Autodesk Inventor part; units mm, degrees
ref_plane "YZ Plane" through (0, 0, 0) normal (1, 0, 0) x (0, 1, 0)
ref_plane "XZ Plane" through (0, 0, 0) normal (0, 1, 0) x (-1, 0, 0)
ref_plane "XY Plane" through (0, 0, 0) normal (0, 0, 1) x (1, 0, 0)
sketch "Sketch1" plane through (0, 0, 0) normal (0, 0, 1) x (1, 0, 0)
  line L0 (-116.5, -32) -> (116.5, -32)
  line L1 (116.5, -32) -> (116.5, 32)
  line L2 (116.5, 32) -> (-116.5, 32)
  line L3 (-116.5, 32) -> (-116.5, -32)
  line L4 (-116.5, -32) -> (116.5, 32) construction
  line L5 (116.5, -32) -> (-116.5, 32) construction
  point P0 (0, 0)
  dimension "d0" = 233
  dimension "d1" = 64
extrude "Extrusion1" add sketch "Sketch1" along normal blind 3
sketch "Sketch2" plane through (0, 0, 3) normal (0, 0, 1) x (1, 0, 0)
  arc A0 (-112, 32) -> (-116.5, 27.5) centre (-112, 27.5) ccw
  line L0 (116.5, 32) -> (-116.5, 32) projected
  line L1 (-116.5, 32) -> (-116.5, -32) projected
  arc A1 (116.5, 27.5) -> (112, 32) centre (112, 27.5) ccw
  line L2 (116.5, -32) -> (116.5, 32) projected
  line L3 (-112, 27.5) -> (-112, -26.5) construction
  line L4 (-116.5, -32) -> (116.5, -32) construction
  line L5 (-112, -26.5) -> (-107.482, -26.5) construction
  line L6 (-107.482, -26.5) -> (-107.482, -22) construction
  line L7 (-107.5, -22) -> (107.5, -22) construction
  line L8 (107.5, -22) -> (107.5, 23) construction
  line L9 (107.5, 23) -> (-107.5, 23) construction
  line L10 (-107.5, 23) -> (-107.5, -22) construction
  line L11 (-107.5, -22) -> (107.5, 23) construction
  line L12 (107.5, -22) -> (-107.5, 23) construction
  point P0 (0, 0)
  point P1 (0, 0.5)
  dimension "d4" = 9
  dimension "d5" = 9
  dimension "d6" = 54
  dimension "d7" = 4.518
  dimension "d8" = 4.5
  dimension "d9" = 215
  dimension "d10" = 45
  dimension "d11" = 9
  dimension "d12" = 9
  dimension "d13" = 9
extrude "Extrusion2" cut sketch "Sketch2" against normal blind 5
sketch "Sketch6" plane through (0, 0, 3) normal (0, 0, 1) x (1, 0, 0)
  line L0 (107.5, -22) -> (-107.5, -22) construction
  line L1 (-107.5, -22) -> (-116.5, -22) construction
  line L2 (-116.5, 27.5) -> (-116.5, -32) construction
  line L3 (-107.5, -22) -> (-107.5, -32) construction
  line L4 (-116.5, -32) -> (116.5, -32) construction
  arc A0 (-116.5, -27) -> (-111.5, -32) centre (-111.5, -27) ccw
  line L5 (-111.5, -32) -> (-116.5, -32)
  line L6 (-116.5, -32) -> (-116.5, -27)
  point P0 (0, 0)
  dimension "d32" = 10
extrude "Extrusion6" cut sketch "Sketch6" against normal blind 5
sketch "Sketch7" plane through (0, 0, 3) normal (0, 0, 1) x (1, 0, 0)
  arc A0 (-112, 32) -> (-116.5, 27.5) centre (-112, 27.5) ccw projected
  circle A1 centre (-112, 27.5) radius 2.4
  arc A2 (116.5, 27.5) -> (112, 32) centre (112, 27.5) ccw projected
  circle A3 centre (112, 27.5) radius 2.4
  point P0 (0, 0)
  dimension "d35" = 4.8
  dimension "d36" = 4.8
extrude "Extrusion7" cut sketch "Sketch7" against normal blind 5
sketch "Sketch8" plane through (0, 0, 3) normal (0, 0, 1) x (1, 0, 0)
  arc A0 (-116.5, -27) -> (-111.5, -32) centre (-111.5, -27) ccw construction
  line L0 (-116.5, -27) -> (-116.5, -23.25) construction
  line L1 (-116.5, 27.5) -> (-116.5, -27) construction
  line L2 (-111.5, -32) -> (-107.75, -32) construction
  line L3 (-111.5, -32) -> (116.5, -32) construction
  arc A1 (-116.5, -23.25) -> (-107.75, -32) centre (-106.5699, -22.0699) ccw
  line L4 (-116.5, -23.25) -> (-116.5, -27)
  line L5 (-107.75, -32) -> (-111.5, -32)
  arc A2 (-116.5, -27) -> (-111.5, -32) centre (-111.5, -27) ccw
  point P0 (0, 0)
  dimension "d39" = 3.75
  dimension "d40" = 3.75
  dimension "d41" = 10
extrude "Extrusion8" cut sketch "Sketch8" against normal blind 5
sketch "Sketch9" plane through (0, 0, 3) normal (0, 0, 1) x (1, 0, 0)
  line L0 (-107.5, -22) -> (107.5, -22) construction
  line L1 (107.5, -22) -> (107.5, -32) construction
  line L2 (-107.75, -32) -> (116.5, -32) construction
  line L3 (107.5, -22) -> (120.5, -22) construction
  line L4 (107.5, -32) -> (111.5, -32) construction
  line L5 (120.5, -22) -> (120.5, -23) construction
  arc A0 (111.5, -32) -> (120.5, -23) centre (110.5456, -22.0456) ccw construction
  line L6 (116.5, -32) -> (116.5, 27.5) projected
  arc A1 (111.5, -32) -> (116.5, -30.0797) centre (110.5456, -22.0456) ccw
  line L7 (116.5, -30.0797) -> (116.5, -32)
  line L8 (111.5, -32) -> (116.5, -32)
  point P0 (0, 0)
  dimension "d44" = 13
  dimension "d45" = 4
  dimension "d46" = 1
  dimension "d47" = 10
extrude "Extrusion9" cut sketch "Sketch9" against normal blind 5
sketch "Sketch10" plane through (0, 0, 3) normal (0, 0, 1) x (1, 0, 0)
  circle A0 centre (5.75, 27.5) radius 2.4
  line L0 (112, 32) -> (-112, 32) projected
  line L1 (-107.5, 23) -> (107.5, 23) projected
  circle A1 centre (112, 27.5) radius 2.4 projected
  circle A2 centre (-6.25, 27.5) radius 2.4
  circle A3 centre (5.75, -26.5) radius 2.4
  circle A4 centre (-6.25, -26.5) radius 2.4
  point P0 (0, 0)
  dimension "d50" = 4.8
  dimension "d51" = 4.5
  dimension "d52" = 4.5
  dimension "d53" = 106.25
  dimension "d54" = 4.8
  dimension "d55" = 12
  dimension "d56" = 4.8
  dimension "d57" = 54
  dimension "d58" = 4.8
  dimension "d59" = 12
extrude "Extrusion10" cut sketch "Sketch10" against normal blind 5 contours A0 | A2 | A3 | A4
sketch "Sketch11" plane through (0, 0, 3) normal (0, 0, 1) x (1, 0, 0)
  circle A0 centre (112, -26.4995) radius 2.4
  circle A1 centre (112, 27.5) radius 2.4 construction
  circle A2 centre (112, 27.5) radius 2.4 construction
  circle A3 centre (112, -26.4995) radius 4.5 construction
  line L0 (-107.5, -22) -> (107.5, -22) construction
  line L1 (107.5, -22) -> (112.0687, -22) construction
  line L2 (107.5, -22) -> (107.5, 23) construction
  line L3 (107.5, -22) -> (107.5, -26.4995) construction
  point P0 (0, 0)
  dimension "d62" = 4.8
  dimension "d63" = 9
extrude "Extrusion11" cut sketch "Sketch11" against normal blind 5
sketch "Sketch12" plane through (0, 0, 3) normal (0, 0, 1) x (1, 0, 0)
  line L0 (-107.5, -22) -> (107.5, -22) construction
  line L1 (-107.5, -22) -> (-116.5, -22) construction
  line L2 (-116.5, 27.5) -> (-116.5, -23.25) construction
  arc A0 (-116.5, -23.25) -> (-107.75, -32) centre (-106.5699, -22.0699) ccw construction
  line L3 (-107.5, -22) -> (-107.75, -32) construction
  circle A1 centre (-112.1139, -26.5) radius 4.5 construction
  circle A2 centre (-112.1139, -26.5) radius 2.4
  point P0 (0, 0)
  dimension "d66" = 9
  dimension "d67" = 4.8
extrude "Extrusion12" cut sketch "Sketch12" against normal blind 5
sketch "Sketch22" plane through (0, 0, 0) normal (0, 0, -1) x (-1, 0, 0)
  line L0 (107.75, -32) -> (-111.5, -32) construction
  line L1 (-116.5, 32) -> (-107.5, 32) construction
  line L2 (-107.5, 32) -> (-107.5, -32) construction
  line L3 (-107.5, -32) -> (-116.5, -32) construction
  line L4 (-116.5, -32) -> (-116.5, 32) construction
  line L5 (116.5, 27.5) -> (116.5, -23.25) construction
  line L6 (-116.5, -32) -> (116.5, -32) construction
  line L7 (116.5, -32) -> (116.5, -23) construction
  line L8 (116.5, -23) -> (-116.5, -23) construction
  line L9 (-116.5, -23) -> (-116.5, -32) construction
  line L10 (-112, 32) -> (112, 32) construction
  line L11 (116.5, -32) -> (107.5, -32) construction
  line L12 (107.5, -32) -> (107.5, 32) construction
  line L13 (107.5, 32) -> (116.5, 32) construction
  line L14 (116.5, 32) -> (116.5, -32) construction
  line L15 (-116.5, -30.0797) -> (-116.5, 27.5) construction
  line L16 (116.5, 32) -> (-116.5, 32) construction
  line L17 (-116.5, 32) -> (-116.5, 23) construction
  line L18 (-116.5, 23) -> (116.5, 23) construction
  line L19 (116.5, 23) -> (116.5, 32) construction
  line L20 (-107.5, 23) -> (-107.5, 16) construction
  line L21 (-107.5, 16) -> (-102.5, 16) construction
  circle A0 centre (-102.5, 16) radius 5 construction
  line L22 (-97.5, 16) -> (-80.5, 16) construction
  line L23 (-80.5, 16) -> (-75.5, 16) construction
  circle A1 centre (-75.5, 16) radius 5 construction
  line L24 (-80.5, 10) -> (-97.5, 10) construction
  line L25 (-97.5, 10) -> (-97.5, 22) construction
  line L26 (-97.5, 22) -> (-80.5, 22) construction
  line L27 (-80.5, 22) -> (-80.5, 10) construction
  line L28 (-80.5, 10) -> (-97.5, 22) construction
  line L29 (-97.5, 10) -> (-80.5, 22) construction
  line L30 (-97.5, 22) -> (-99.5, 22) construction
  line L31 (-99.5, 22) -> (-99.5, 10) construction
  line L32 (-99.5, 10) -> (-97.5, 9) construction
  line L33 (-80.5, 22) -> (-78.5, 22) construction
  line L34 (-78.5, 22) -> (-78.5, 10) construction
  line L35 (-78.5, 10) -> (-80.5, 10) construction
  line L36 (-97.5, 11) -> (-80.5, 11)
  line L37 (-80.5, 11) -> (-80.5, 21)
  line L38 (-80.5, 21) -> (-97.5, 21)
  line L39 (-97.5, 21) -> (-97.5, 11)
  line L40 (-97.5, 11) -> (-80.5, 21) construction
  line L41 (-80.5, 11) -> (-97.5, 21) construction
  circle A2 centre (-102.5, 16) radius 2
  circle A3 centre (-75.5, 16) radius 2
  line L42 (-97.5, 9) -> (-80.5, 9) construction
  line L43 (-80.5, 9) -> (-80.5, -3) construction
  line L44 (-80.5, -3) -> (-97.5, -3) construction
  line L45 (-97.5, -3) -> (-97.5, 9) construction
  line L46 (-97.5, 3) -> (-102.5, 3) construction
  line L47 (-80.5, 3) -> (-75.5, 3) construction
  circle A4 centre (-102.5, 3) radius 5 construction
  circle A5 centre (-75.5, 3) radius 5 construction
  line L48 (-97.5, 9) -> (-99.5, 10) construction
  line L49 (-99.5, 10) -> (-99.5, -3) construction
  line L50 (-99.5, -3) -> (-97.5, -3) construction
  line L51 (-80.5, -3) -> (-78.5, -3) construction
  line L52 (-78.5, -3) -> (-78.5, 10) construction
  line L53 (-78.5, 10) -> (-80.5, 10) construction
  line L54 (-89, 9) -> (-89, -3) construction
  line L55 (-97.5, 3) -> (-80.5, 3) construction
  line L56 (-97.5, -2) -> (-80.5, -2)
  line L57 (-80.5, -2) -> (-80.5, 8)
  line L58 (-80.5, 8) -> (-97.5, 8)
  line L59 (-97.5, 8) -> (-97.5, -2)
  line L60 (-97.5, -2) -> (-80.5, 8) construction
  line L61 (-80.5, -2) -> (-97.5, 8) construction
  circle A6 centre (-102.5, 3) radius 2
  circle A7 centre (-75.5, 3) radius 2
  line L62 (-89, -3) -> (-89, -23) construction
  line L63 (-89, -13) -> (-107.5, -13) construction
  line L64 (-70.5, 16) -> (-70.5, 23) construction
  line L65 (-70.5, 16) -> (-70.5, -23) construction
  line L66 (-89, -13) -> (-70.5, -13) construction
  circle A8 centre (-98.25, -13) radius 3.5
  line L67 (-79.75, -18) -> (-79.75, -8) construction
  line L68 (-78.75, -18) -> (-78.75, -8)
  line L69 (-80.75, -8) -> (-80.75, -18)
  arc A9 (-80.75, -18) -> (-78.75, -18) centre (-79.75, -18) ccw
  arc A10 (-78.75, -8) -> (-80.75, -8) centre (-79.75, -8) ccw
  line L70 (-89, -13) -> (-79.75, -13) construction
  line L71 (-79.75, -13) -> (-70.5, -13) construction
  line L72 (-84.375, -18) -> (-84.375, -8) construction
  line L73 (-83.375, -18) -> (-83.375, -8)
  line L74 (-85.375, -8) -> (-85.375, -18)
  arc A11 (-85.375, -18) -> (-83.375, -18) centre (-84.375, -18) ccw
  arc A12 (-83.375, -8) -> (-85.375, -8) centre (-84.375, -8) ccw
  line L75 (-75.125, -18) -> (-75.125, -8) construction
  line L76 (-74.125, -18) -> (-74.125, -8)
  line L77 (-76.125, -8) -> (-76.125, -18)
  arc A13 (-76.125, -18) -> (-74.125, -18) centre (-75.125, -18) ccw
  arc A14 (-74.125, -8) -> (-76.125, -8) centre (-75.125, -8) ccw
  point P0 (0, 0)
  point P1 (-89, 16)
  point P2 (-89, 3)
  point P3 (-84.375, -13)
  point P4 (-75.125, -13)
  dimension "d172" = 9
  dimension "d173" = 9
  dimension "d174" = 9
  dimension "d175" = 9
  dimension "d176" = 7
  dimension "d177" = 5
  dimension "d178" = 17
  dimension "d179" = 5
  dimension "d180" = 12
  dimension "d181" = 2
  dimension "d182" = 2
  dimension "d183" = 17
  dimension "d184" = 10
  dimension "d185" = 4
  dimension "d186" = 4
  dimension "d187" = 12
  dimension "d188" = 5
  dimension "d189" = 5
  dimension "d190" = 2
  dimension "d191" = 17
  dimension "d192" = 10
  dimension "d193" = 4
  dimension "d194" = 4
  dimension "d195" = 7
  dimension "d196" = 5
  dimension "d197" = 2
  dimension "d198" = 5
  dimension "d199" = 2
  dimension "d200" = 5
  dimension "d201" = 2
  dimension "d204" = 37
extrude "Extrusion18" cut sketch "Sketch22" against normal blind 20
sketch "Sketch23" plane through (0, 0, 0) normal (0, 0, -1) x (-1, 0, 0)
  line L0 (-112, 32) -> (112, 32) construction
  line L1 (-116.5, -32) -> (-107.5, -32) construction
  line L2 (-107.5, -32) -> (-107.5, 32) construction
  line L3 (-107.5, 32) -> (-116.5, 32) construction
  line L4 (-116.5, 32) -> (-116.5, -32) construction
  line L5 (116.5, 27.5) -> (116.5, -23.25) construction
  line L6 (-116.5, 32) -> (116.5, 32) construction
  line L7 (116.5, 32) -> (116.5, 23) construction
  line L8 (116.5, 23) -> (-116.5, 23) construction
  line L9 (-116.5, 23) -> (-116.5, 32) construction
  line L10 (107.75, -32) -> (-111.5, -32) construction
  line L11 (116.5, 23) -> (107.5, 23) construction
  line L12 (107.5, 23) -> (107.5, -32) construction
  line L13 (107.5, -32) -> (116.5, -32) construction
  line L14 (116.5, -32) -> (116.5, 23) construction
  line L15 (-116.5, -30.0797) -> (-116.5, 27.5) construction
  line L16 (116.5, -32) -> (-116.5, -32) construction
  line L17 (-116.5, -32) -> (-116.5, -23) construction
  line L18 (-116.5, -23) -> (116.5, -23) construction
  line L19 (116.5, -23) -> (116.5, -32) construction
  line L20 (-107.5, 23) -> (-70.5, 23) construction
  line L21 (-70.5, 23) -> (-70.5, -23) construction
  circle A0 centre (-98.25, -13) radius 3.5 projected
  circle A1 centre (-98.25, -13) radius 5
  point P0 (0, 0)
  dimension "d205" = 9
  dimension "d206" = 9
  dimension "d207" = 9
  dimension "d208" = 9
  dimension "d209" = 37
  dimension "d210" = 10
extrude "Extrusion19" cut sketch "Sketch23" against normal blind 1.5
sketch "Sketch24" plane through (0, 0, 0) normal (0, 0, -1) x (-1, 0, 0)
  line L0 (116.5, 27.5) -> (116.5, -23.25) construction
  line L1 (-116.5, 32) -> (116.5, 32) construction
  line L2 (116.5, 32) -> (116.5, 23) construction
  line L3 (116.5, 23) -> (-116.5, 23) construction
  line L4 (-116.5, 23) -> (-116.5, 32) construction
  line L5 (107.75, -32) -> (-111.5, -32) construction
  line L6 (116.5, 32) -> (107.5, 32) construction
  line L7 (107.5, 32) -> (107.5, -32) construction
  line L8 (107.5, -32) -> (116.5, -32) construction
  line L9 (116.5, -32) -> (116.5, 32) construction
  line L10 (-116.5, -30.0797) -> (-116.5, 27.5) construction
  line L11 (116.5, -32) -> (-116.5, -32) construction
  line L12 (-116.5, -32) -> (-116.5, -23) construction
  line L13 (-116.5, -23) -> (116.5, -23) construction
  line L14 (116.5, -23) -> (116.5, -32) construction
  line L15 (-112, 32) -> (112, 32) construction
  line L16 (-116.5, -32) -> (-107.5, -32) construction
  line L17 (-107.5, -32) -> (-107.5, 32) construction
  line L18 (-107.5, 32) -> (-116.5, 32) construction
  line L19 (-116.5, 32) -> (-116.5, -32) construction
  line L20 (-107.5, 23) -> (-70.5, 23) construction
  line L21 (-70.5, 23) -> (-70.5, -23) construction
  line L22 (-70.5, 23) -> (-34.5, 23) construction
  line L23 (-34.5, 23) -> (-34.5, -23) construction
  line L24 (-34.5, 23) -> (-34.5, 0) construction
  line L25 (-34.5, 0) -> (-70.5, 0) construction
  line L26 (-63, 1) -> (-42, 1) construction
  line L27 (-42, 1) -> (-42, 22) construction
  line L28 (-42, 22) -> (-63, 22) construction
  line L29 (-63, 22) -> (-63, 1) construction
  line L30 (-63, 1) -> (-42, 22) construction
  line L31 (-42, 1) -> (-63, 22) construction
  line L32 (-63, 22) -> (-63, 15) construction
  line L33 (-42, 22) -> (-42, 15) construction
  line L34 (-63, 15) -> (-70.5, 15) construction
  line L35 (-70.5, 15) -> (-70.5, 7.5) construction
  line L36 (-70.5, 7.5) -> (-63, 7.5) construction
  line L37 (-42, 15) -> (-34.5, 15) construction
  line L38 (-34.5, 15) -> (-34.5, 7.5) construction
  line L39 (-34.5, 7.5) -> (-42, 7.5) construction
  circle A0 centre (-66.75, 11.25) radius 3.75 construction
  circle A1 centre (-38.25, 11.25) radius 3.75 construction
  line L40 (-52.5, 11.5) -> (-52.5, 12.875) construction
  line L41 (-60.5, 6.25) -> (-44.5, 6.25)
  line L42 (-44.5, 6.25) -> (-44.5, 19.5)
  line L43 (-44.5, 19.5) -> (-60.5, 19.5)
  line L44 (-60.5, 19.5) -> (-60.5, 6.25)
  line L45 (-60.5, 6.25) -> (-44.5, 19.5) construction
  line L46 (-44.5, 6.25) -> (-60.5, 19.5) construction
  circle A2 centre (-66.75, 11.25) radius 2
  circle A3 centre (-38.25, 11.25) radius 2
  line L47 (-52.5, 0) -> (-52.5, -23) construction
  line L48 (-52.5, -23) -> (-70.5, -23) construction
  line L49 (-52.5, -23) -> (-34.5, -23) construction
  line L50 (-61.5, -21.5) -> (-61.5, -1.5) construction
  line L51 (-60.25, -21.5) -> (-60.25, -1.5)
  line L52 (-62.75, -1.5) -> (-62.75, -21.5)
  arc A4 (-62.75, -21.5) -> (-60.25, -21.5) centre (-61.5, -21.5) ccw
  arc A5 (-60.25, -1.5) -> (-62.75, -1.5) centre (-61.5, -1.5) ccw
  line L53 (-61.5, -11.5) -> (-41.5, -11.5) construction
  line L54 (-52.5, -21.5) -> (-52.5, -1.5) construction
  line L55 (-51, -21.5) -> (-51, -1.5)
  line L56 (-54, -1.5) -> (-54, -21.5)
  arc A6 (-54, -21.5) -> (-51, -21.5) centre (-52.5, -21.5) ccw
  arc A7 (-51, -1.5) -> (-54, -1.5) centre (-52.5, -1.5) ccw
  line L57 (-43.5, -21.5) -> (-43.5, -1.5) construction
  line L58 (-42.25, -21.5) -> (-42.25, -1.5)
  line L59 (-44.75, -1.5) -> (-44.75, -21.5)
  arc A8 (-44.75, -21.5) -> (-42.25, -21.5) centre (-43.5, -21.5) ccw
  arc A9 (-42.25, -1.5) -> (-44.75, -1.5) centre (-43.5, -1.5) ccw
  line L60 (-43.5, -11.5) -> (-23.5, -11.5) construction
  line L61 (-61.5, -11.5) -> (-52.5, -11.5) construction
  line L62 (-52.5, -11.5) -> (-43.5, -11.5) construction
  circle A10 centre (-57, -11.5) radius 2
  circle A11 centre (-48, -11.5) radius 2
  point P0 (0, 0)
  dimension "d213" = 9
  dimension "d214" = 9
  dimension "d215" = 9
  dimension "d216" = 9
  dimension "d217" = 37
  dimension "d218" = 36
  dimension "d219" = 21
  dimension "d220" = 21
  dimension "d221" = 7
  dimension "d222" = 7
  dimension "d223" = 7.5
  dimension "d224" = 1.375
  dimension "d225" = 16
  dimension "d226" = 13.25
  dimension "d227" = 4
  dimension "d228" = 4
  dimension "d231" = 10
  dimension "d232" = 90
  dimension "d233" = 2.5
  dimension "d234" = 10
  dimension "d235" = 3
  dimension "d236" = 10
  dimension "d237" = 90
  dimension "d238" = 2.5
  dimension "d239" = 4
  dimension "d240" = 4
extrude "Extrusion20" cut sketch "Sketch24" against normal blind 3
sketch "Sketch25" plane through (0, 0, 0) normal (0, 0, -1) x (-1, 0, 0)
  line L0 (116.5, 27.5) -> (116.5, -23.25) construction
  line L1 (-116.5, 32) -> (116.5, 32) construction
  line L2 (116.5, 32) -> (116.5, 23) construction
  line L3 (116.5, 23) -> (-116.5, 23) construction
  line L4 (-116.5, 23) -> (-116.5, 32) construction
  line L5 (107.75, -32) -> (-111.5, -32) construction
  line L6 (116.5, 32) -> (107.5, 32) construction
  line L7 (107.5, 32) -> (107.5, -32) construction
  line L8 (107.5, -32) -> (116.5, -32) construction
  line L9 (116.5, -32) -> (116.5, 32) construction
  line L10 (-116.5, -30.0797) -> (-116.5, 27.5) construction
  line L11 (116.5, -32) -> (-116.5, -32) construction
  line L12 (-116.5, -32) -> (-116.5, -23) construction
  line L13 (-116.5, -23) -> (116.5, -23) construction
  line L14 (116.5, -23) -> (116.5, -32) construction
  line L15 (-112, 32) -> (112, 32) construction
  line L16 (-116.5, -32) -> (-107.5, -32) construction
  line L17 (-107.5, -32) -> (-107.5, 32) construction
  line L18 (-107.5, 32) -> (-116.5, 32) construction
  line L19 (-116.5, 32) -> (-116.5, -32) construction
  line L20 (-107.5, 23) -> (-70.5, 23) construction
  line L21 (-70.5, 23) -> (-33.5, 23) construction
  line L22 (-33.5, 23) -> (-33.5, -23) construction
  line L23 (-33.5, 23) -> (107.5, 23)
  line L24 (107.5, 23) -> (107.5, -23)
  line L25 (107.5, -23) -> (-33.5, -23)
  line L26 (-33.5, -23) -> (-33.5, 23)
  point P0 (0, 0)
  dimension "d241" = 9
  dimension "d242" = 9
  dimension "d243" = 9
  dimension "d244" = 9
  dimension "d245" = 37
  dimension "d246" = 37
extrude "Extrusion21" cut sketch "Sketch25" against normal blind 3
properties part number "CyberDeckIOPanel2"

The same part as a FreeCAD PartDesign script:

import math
import FreeCAD as App
import Part
import Sketcher
from FreeCAD import Vector
Q = App.Units.Quantity

doc = App.newDocument("Part")
body = doc.addObject("PartDesign::Body", "Body")

# Sketch on XY plane
sketch1 = body.newObject("Sketcher::SketchObject", "Sketch")
sketch1.AttachmentSupport = (doc.getObject("XY_Plane"), [""])
sketch1.MapMode = "FlatFace"
sketch1.addGeometry([
    Part.LineSegment(Vector(-116.5, 32, 0), Vector(-116.5, -32, 0)),
    Part.LineSegment(Vector(-116.5, -32, 0), Vector(116.5, -32, 0)),
    Part.LineSegment(Vector(116.5, -32, 0), Vector(116.5, 32, 0)),
    Part.LineSegment(Vector(116.5, 32, 0), Vector(-116.5, 32, 0)),
], False)
sketch1.addConstraint([
    Sketcher.Constraint("Coincident", 0, 2, 1, 1),
    Sketcher.Constraint("Coincident", 1, 2, 2, 1),
    Sketcher.Constraint("Coincident", 2, 2, 3, 1),
    Sketcher.Constraint("Coincident", 3, 2, 0, 1),
    Sketcher.Constraint("Vertical", 0),
    Sketcher.Constraint("Horizontal", 1),
    Sketcher.Constraint("Vertical", 2),
    Sketcher.Constraint("Horizontal", 3),
    Sketcher.Constraint("Symmetric", 0, 2, 2, 2, -1, 1),
    Sketcher.Constraint("DistanceX", 1, 1, 1, 2, Q("233 mm")),
    Sketcher.Constraint("DistanceY", 0, 2, 0, 1, Q("64 mm")),
])
pad1 = body.newObject("PartDesign::Pad", "Pad")
pad1.Profile = sketch1
pad1.Length = 3

# Sketch on XY plane
sketch2 = body.newObject("Sketcher::SketchObject", "Sketch001")
sketch2.AttachmentSupport = (doc.getObject("XY_Plane"), [""])
sketch2.MapMode = "FlatFace"
sketch2.AttachmentOffset = App.Placement(Vector(0, 0, 3), App.Rotation())
sketch2.addGeometry([
    Part.LineSegment(Vector(116.5, 32, 0), Vector(112, 32, 0)),  # 0
    Part.ArcOfCircle(Part.Circle(Vector(112, 27.5, 0), Vector(0, 0, 1), 4.5), math.radians(0), math.radians(90)),  # 1
    Part.LineSegment(Vector(116.5, 27.5, 0), Vector(116.5, 32, 0)),  # 2
    Part.ArcOfCircle(Part.Circle(Vector(-112, 27.5, 0), Vector(0, 0, 1), 4.5), math.radians(90), math.radians(180)),  # 3
    Part.LineSegment(Vector(-112, 32, 0), Vector(-116.5, 32, 0)),  # 4
    Part.LineSegment(Vector(-116.5, 32, 0), Vector(-116.5, 27.5, 0)),  # 5
], False)
sketch2.addConstraint([
    Sketcher.Constraint("Tangent", 0, 2, 1, 2),
    Sketcher.Constraint("Tangent", 1, 1, 2, 1),
    Sketcher.Constraint("Coincident", 2, 2, 0, 1),
    Sketcher.Constraint("Tangent", 3, 1, 4, 1),
    Sketcher.Constraint("Coincident", 4, 2, 5, 1),
    Sketcher.Constraint("Tangent", 5, 2, 3, 2),
    Sketcher.Constraint("Horizontal", 0),
    Sketcher.Constraint("Vertical", 2),
    Sketcher.Constraint("Horizontal", 4),
    Sketcher.Constraint("Vertical", 5),
    Sketcher.Constraint("Equal", 1, 3),
    Sketcher.Constraint("Symmetric", 1, 3, 3, 3, -2),
    Sketcher.Constraint("Radius", 1, Q("4.5 mm")),
    Sketcher.Constraint("DistanceX", -1, 1, 1, 3, Q("112 mm")),
    Sketcher.Constraint("DistanceY", -1, 1, 0, 2, Q("32 mm")),
])
pocket1 = body.newObject("PartDesign::Pocket", "Pocket")
pocket1.Profile = sketch2
pocket1.Length = 5

# Sketch on XY plane
sketch3 = body.newObject("Sketcher::SketchObject", "Sketch002")
sketch3.AttachmentSupport = (doc.getObject("XY_Plane"), [""])
sketch3.MapMode = "FlatFace"
sketch3.AttachmentOffset = App.Placement(Vector(0, 0, 3), App.Rotation())
sketch3.addGeometry([
    Part.ArcOfCircle(Part.Circle(Vector(-111.5, -27, 0), Vector(0, 0, 1), 5), math.radians(180), math.radians(270)),
    Part.LineSegment(Vector(-116.5, -27, 0), Vector(-116.5, -32, 0)),
    Part.LineSegment(Vector(-116.5, -32, 0), Vector(-111.5, -32, 0)),
], False)
sketch3.addConstraint([
    Sketcher.Constraint("Tangent", 0, 1, 1, 1),
    Sketcher.Constraint("Coincident", 1, 2, 2, 1),
    Sketcher.Constraint("Tangent", 2, 2, 0, 2),
    Sketcher.Constraint("Vertical", 1),
    Sketcher.Constraint("Horizontal", 2),
    Sketcher.Constraint("Radius", 0, Q("5 mm")),
    Sketcher.Constraint("DistanceY", 0, 3, -1, 1, Q("27 mm")),
    Sketcher.Constraint("DistanceX", 0, 3, -1, 1, Q("111.5 mm")),
])
pocket2 = body.newObject("PartDesign::Pocket", "Pocket001")
pocket2.Profile = sketch3
pocket2.Length = 5

# Sketch on XY plane
sketch4 = body.newObject("Sketcher::SketchObject", "Sketch003")
sketch4.AttachmentSupport = (doc.getObject("XY_Plane"), [""])
sketch4.MapMode = "FlatFace"
sketch4.AttachmentOffset = App.Placement(Vector(0, 0, 3), App.Rotation())
sketch4.addGeometry([
    Part.Circle(Vector(-112, 27.5, 0), Vector(0, 0, 1), 2.4),
    Part.Circle(Vector(112, 27.5, 0), Vector(0, 0, 1), 2.4),
], False)
sketch4.addConstraint([
    Sketcher.Constraint("Equal", 0, 1),
    Sketcher.Constraint("Symmetric", 0, 3, 1, 3, -2),
    Sketcher.Constraint("Diameter", 0, Q("4.8 mm")),
    Sketcher.Constraint("DistanceX", 0, 3, -1, 1, Q("112 mm")),
    Sketcher.Constraint("DistanceY", -1, 1, 0, 3, Q("27.5 mm")),
])
pocket3 = body.newObject("PartDesign::Pocket", "Pocket002")
pocket3.Profile = sketch4
pocket3.Length = 5

# Sketch on XY plane
sketch5 = body.newObject("Sketcher::SketchObject", "Sketch004")
sketch5.AttachmentSupport = (doc.getObject("XY_Plane"), [""])
sketch5.MapMode = "FlatFace"
sketch5.AttachmentOffset = App.Placement(Vector(0, 0, 3), App.Rotation())
sketch5.addGeometry([
    Part.ArcOfCircle(Part.Circle(Vector(-106.5699, -22.0699, 0), Vector(0, 0, 1), 9.999976), math.radians(-173.222716), math.radians(-96.777284)),
    Part.LineSegment(Vector(-116.5, -23.25, 0), Vector(-116.5, -27, 0)),
    Part.ArcOfCircle(Part.Circle(Vector(-111.5, -27, 0), Vector(0, 0, 1), 5), math.radians(180), math.radians(270)),
    Part.LineSegment(Vector(-111.5, -32, 0), Vector(-107.75, -32, 0)),
], False)
sketch5.addConstraint([
    Sketcher.Constraint("Coincident", 0, 1, 1, 1),
    Sketcher.Constraint("Tangent", 1, 2, 2, 1),
    Sketcher.Constraint("Tangent", 2, 2, 3, 1),
    Sketcher.Constraint("Coincident", 3, 2, 0, 2),
    Sketcher.Constraint("Vertical", 1),
    Sketcher.Constraint("Horizontal", 3),
    Sketcher.Constraint("Equal", 3, 1),
    Sketcher.Constraint("Radius", 0, Q("10 mm")),
    Sketcher.Constraint("Radius", 2, Q("5 mm")),
    Sketcher.Constraint("DistanceX", 3, 1, 3, 2, Q("3.75 mm")),
    Sketcher.Constraint("DistanceY", 2, 3, -1, 1, Q("27 mm")),
    Sketcher.Constraint("DistanceX", 2, 3, -1, 1, Q("111.5 mm")),
])
pocket4 = body.newObject("PartDesign::Pocket", "Pocket003")
pocket4.Profile = sketch5
pocket4.Length = 5

# Sketch on XY plane
sketch6 = body.newObject("Sketcher::SketchObject", "Sketch005")
sketch6.AttachmentSupport = (doc.getObject("XY_Plane"), [""])
sketch6.MapMode = "FlatFace"
sketch6.AttachmentOffset = App.Placement(Vector(0, 0, 3), App.Rotation())
sketch6.addGeometry([
    Part.LineSegment(Vector(111.5, -32, 0), Vector(116.5, -32, 0)),
    Part.LineSegment(Vector(116.5, -32, 0), Vector(116.5, -30.0797, 0)),
    Part.ArcOfCircle(Part.Circle(Vector(110.5456, -22.0456, 0), Vector(0, 0, 1), 10.000048), math.radians(-84.523381), math.radians(-53.456344)),
], False)
sketch6.addConstraint([
    Sketcher.Constraint("Coincident", 0, 2, 1, 1),
    Sketcher.Constraint("Coincident", 1, 2, 2, 2),
    Sketcher.Constraint("Coincident", 2, 1, 0, 1),
    Sketcher.Constraint("Horizontal", 0),
    Sketcher.Constraint("Vertical", 1),
    Sketcher.Constraint("Radius", 2, Q("10 mm")),
    Sketcher.Constraint("DistanceX", 0, 1, 0, 2, Q("5 mm")),
    Sketcher.Constraint("DistanceY", 0, 2, -1, 1, Q("32 mm")),
    Sketcher.Constraint("DistanceX", -1, 1, 0, 2, Q("116.5 mm")),
    Sketcher.Constraint("DistanceY", 1, 1, 1, 2, Q("1.9203 mm")),
])
pocket5 = body.newObject("PartDesign::Pocket", "Pocket004")
pocket5.Profile = sketch6
pocket5.Length = 5

# Sketch on XY plane
sketch7 = body.newObject("Sketcher::SketchObject", "Sketch006")
sketch7.AttachmentSupport = (doc.getObject("XY_Plane"), [""])
sketch7.MapMode = "FlatFace"
sketch7.AttachmentOffset = App.Placement(Vector(0, 0, 3), App.Rotation())
sketch7.addGeometry([
    Part.Circle(Vector(5.75, 27.5, 0), Vector(0, 0, 1), 2.4),
    Part.Circle(Vector(-6.25, 27.5, 0), Vector(0, 0, 1), 2.4),
    Part.Circle(Vector(5.75, -26.5, 0), Vector(0, 0, 1), 2.4),
    Part.Circle(Vector(-6.25, -26.5, 0), Vector(0, 0, 1), 2.4),
], False)
sketch7.addConstraint([
    Sketcher.Constraint("Equal", 0, 1),
    Sketcher.Constraint("Equal", 1, 2),
    Sketcher.Constraint("Equal", 2, 3),
    Sketcher.Constraint("Horizontal", 0, 3, 1, 3),
    Sketcher.Constraint("Horizontal", 2, 3, 3, 3),
    Sketcher.Constraint("Vertical", 0, 3, 2, 3),
    Sketcher.Constraint("Vertical", 1, 3, 3, 3),
    Sketcher.Constraint("Diameter", 0, Q("4.8 mm")),
    Sketcher.Constraint("DistanceX", 1, 3, 0, 3, Q("12 mm")),
    Sketcher.Constraint("DistanceY", 2, 3, 0, 3, Q("54 mm")),
    Sketcher.Constraint("DistanceY", -1, 1, 0, 3, Q("27.5 mm")),
    Sketcher.Constraint("DistanceX", -1, 1, 0, 3, Q("5.75 mm")),
])
pocket6 = body.newObject("PartDesign::Pocket", "Pocket005")
pocket6.Profile = sketch7
pocket6.Length = 5

# Sketch on XY plane
sketch8 = body.newObject("Sketcher::SketchObject", "Sketch007")
sketch8.AttachmentSupport = (doc.getObject("XY_Plane"), [""])
sketch8.MapMode = "FlatFace"
sketch8.AttachmentOffset = App.Placement(Vector(0, 0, 3), App.Rotation())
sketch8.addGeometry(Part.Circle(Vector(112, -26.4995, 0), Vector(0, 0, 1), 2.4), False)
sketch8.addConstraint([
    Sketcher.Constraint("Diameter", 0, Q("4.8 mm")),
    Sketcher.Constraint("DistanceX", -1, 1, 0, 3, Q("112 mm")),
    Sketcher.Constraint("DistanceY", 0, 3, -1, 1, Q("26.4995 mm")),
])
pocket7 = body.newObject("PartDesign::Pocket", "Pocket006")
pocket7.Profile = sketch8
pocket7.Length = 5

# Sketch on XY plane
sketch9 = body.newObject("Sketcher::SketchObject", "Sketch008")
sketch9.AttachmentSupport = (doc.getObject("XY_Plane"), [""])
sketch9.MapMode = "FlatFace"
sketch9.AttachmentOffset = App.Placement(Vector(0, 0, 3), App.Rotation())
sketch9.addGeometry(Part.Circle(Vector(-112.1139, -26.5, 0), Vector(0, 0, 1), 2.4), False)
sketch9.addConstraint([
    Sketcher.Constraint("Diameter", 0, Q("4.8 mm")),
    Sketcher.Constraint("DistanceY", 0, 3, -1, 1, Q("26.5 mm")),
    Sketcher.Constraint("DistanceX", 0, 3, -1, 1, Q("112.114 mm")),
])
pocket8 = body.newObject("PartDesign::Pocket", "Pocket007")
pocket8.Profile = sketch9
pocket8.Length = 5

# Sketch on XY plane
sketch10 = body.newObject("Sketcher::SketchObject", "Sketch009")
sketch10.AttachmentSupport = (doc.getObject("XY_Plane"), [""])
sketch10.MapMode = "FlatFace"
sketch10.addGeometry([
    Part.LineSegment(Vector(97.5, 21, 0), Vector(97.5, 11, 0)),  # 0
    Part.LineSegment(Vector(97.5, 11, 0), Vector(80.5, 11, 0)),  # 1
    Part.LineSegment(Vector(80.5, 11, 0), Vector(80.5, 21, 0)),  # 2
    Part.LineSegment(Vector(80.5, 21, 0), Vector(97.5, 21, 0)),  # 3
    Part.Circle(Vector(102.5, 16, 0), Vector(0, 0, 1), 2),  # 4
    Part.Circle(Vector(75.5, 16, 0), Vector(0, 0, 1), 2),  # 5
    Part.LineSegment(Vector(97.5, 8, 0), Vector(97.5, -2, 0)),  # 6
    Part.LineSegment(Vector(97.5, -2, 0), Vector(80.5, -2, 0)),  # 7
    Part.LineSegment(Vector(80.5, -2, 0), Vector(80.5, 8, 0)),  # 8
    Part.LineSegment(Vector(80.5, 8, 0), Vector(97.5, 8, 0)),  # 9
    Part.Circle(Vector(102.5, 3, 0), Vector(0, 0, 1), 2),  # 10
    Part.Circle(Vector(75.5, 3, 0), Vector(0, 0, 1), 2),  # 11
    Part.Circle(Vector(98.25, -13, 0), Vector(0, 0, 1), 3.5),  # 12
    Part.ArcOfCircle(Part.Circle(Vector(79.75, -18, 0), Vector(0, 0, 1), 1), math.radians(180), math.radians(360)),  # 13
    Part.LineSegment(Vector(78.75, -18, 0), Vector(78.75, -8, 0)),  # 14
    Part.ArcOfCircle(Part.Circle(Vector(79.75, -8, 0), Vector(0, 0, 1), 1), math.radians(0), math.radians(180)),  # 15
    Part.LineSegment(Vector(80.75, -8, 0), Vector(80.75, -18, 0)),  # 16
    Part.ArcOfCircle(Part.Circle(Vector(84.375, -18, 0), Vector(0, 0, 1), 1), math.radians(180), math.radians(360)),  # 17
    Part.LineSegment(Vector(83.375, -18, 0), Vector(83.375, -8, 0)),  # 18
    Part.ArcOfCircle(Part.Circle(Vector(84.375, -8, 0), Vector(0, 0, 1), 1), math.radians(0), math.radians(180)),  # 19
    Part.LineSegment(Vector(85.375, -8, 0), Vector(85.375, -18, 0)),  # 20
    Part.ArcOfCircle(Part.Circle(Vector(75.125, -18, 0), Vector(0, 0, 1), 1), math.radians(180), math.radians(360)),  # 21
    Part.LineSegment(Vector(74.125, -18, 0), Vector(74.125, -8, 0)),  # 22
    Part.ArcOfCircle(Part.Circle(Vector(75.125, -8, 0), Vector(0, 0, 1), 1), math.radians(0), math.radians(180)),  # 23
    Part.LineSegment(Vector(76.125, -8, 0), Vector(76.125, -18, 0)),  # 24
], False)
sketch10.addConstraint([
    Sketcher.Constraint("Coincident", 0, 2, 1, 1),
    Sketcher.Constraint("Coincident", 1, 2, 2, 1),
    Sketcher.Constraint("Coincident", 2, 2, 3, 1),
    Sketcher.Constraint("Coincident", 3, 2, 0, 1),
    Sketcher.Constraint("Coincident", 6, 2, 7, 1),
    Sketcher.Constraint("Coincident", 7, 2, 8, 1),
    Sketcher.Constraint("Coincident", 8, 2, 9, 1),
    Sketcher.Constraint("Coincident", 9, 2, 6, 1),
    Sketcher.Constraint("Tangent", 13, 1, 14, 1),
    Sketcher.Constraint("Tangent", 14, 2, 15, 2),
    Sketcher.Constraint("Tangent", 15, 1, 16, 1),
    Sketcher.Constraint("Tangent", 16, 2, 13, 2),
    Sketcher.Constraint("Tangent", 17, 1, 18, 1),
    Sketcher.Constraint("Tangent", 18, 2, 19, 2),
    Sketcher.Constraint("Tangent", 19, 1, 20, 1),
    Sketcher.Constraint("Tangent", 20, 2, 17, 2),
    Sketcher.Constraint("Tangent", 21, 1, 22, 1),
    Sketcher.Constraint("Tangent", 22, 2, 23, 2),
    Sketcher.Constraint("Tangent", 23, 1, 24, 1),
    Sketcher.Constraint("Tangent", 24, 2, 21, 2),
    Sketcher.Constraint("Vertical", 0),
    Sketcher.Constraint("Horizontal", 1),
    Sketcher.Constraint("Vertical", 2),
    Sketcher.Constraint("Horizontal", 3),
    Sketcher.Constraint("Vertical", 6),
    Sketcher.Constraint("Horizontal", 7),
    Sketcher.Constraint("Vertical", 8),
    Sketcher.Constraint("Horizontal", 9),
    Sketcher.Constraint("Vertical", 14),
    Sketcher.Constraint("Vertical", 16),
    Sketcher.Constraint("Vertical", 18),
    Sketcher.Constraint("Vertical", 20),
    Sketcher.Constraint("Vertical", 22),
    Sketcher.Constraint("Vertical", 24),
    Sketcher.Constraint("Equal", 4, 5),
    Sketcher.Constraint("Equal", 5, 10),
    Sketcher.Constraint("Equal", 10, 11),
    Sketcher.Constraint("Equal", 15, 17),
    Sketcher.Constraint("Equal", 19, 21),
    Sketcher.Constraint("Horizontal", 4, 3, 5, 3),
    Sketcher.Constraint("Horizontal", 10, 3, 11, 3),
    Sketcher.Constraint("Horizontal", 13, 3, 17, 3),
    Sketcher.Constraint("Horizontal", 15, 3, 19, 3),
    Sketcher.Constraint("Horizontal", 17, 3, 21, 3),
    Sketcher.Constraint("Horizontal", 19, 3, 23, 3),
    Sketcher.Constraint("Vertical", 4, 3, 10, 3),
    Sketcher.Constraint("Vertical", 5, 3, 11, 3),
    Sketcher.Constraint("Vertical", 3, 2, 6, 2),
    Sketcher.Constraint("Vertical", 2, 2, 7, 2),
    Sketcher.Constraint("Equal", 2, 6),
    Sketcher.Constraint("Equal", 8, 14),
    Sketcher.Constraint("Diameter", 4, Q("4 mm")),
    Sketcher.Constraint("Diameter", 12, Q("7 mm")),
    Sketcher.Constraint("Radius", 13, Q("1 mm")),
    Sketcher.Constraint("DistanceX", 1, 2, 1, 1, Q("17 mm")),
    Sketcher.Constraint("DistanceY", 0, 2, 0, 1, Q("10 mm")),
    Sketcher.Constraint("DistanceY", 6, 2, -1, 1, Q("2 mm")),
    Sketcher.Constraint("DistanceY", 13, 3, 12, 3, Q("5 mm")),
    Sketcher.Constraint("DistanceX", 0, 2, 4, 3, Q("5 mm")),
    Sketcher.Constraint("DistanceY", 0, 2, 4, 3, Q("5 mm")),
    Sketcher.Constraint("DistanceX", 5, 3, 1, 2, Q("5 mm")),
    Sketcher.Constraint("DistanceY", 6, 2, 10, 3, Q("5 mm")),
    Sketcher.Constraint("DistanceY", -1, 1, 4, 3, Q("16 mm")),
    Sketcher.Constraint("DistanceY", 12, 3, -1, 1, Q("13 mm")),
    Sketcher.Constraint("DistanceX", -1, 1, 4, 3, Q("102.5 mm")),
    Sketcher.Constraint("DistanceX", 13, 3, 12, 3, Q("18.5 mm")),
    Sketcher.Constraint("DistanceX", -1, 1, 12, 3, Q("98.25 mm")),
    Sketcher.Constraint("DistanceX", 21, 3, 17, 3, Q("9.25 mm")),
    Sketcher.Constraint("DistanceX", -1, 1, 17, 3, Q("84.375 mm")),
])
pocket9 = body.newObject("PartDesign::Pocket", "Pocket008")
pocket9.Profile = sketch10
pocket9.Length = 20
pocket9.Reversed = True

# Sketch on XY plane
sketch11 = body.newObject("Sketcher::SketchObject", "Sketch010")
sketch11.AttachmentSupport = (doc.getObject("XY_Plane"), [""])
sketch11.MapMode = "FlatFace"
sketch11.addGeometry([
    Part.Circle(Vector(98.25, -13, 0), Vector(0, 0, 1), 5),
    Part.Circle(Vector(98.25, -13, 0), Vector(0, 0, 1), 3.5),
], False)
sketch11.addConstraint([
    Sketcher.Constraint("Coincident", 1, 3, 0, 3),
    Sketcher.Constraint("Diameter", 0, Q("10 mm")),
    Sketcher.Constraint("Diameter", 1, Q("7 mm")),
    Sketcher.Constraint("DistanceY", 0, 3, -1, 1, Q("13 mm")),
    Sketcher.Constraint("DistanceX", -1, 1, 0, 3, Q("98.25 mm")),
])
pocket10 = body.newObject("PartDesign::Pocket", "Pocket009")
pocket10.Profile = sketch11
pocket10.Length = 1.5
pocket10.Reversed = True

# Sketch on XY plane
sketch12 = body.newObject("Sketcher::SketchObject", "Sketch011")
sketch12.AttachmentSupport = (doc.getObject("XY_Plane"), [""])
sketch12.MapMode = "FlatFace"
sketch12.addGeometry([
    Part.LineSegment(Vector(60.5, 19.5, 0), Vector(60.5, 6.25, 0)),  # 0
    Part.LineSegment(Vector(60.5, 6.25, 0), Vector(44.5, 6.25, 0)),  # 1
    Part.LineSegment(Vector(44.5, 6.25, 0), Vector(44.5, 19.5, 0)),  # 2
    Part.LineSegment(Vector(44.5, 19.5, 0), Vector(60.5, 19.5, 0)),  # 3
    Part.Circle(Vector(66.75, 11.25, 0), Vector(0, 0, 1), 2),  # 4
    Part.Circle(Vector(38.25, 11.25, 0), Vector(0, 0, 1), 2),  # 5
    Part.ArcOfCircle(Part.Circle(Vector(61.5, -21.5, 0), Vector(0, 0, 1), 1.25), math.radians(180), math.radians(360)),  # 6
    Part.LineSegment(Vector(60.25, -21.5, 0), Vector(60.25, -1.5, 0)),  # 7
    Part.ArcOfCircle(Part.Circle(Vector(61.5, -1.5, 0), Vector(0, 0, 1), 1.25), math.radians(0), math.radians(180)),  # 8
    Part.LineSegment(Vector(62.75, -1.5, 0), Vector(62.75, -21.5, 0)),  # 9
    Part.ArcOfCircle(Part.Circle(Vector(52.5, -21.5, 0), Vector(0, 0, 1), 1.5), math.radians(180), math.radians(360)),  # 10
    Part.LineSegment(Vector(51, -21.5, 0), Vector(51, -1.5, 0)),  # 11
    Part.ArcOfCircle(Part.Circle(Vector(52.5, -1.5, 0), Vector(0, 0, 1), 1.5), math.radians(0), math.radians(180)),  # 12
    Part.LineSegment(Vector(54, -1.5, 0), Vector(54, -21.5, 0)),  # 13
    Part.ArcOfCircle(Part.Circle(Vector(43.5, -21.5, 0), Vector(0, 0, 1), 1.25), math.radians(180), math.radians(360)),  # 14
    Part.LineSegment(Vector(42.25, -21.5, 0), Vector(42.25, -1.5, 0)),  # 15
    Part.ArcOfCircle(Part.Circle(Vector(43.5, -1.5, 0), Vector(0, 0, 1), 1.25), math.radians(0), math.radians(180)),  # 16
    Part.LineSegment(Vector(44.75, -1.5, 0), Vector(44.75, -21.5, 0)),  # 17
    Part.Circle(Vector(57, -11.5, 0), Vector(0, 0, 1), 2),  # 18
    Part.Circle(Vector(48, -11.5, 0), Vector(0, 0, 1), 2),  # 19
], False)
sketch12.addConstraint([
    Sketcher.Constraint("Coincident", 0, 2, 1, 1),
    Sketcher.Constraint("Coincident", 1, 2, 2, 1),
    Sketcher.Constraint("Coincident", 2, 2, 3, 1),
    Sketcher.Constraint("Coincident", 3, 2, 0, 1),
    Sketcher.Constraint("Tangent", 6, 1, 7, 1),
    Sketcher.Constraint("Tangent", 7, 2, 8, 2),
    Sketcher.Constraint("Tangent", 8, 1, 9, 1),
    Sketcher.Constraint("Tangent", 9, 2, 6, 2),
    Sketcher.Constraint("Tangent", 10, 1, 11, 1),
    Sketcher.Constraint("Tangent", 11, 2, 12, 2),
    Sketcher.Constraint("Tangent", 12, 1, 13, 1),
    Sketcher.Constraint("Tangent", 13, 2, 10, 2),
    Sketcher.Constraint("Tangent", 14, 1, 15, 1),
    Sketcher.Constraint("Tangent", 15, 2, 16, 2),
    Sketcher.Constraint("Tangent", 16, 1, 17, 1),
    Sketcher.Constraint("Tangent", 17, 2, 14, 2),
    Sketcher.Constraint("Vertical", 0),
    Sketcher.Constraint("Horizontal", 1),
    Sketcher.Constraint("Vertical", 2),
    Sketcher.Constraint("Horizontal", 3),
    Sketcher.Constraint("Vertical", 7),
    Sketcher.Constraint("Vertical", 9),
    Sketcher.Constraint("Vertical", 11),
    Sketcher.Constraint("Vertical", 13),
    Sketcher.Constraint("Vertical", 15),
    Sketcher.Constraint("Vertical", 17),
    Sketcher.Constraint("Equal", 4, 5),
    Sketcher.Constraint("Equal", 8, 14),
    Sketcher.Constraint("Equal", 5, 18),
    Sketcher.Constraint("Equal", 18, 19),
    Sketcher.Constraint("Horizontal", 4, 3, 5, 3),
    Sketcher.Constraint("Horizontal", 6, 3, 10, 3),
    Sketcher.Constraint("Horizontal", 8, 3, 12, 3),
    Sketcher.Constraint("Horizontal", 10, 3, 14, 3),
    Sketcher.Constraint("Horizontal", 12, 3, 16, 3),
    Sketcher.Constraint("Horizontal", 18, 3, 19, 3),
    Sketcher.Constraint("Diameter", 4, Q("4 mm")),
    Sketcher.Constraint("Radius", 10, Q("1.5 mm")),
    Sketcher.Constraint("DistanceX", 1, 2, 1, 1, Q("16 mm")),
    Sketcher.Constraint("Radius", 6, Q("1.25 mm")),
    Sketcher.Constraint("DistanceX", 10, 3, 6, 3, Q("9 mm")),
    Sketcher.Constraint("DistanceX", 14, 3, 10, 3, Q("9 mm")),
    Sketcher.Constraint("DistanceY", 6, 3, 18, 3, Q("10 mm")),
    Sketcher.Constraint("DistanceY", 18, 3, 8, 3, Q("10 mm")),
    Sketcher.Constraint("DistanceX", 19, 3, 18, 3, Q("9 mm")),
    Sketcher.Constraint("DistanceY", 16, 3, 2, 2, Q("21 mm")),
    Sketcher.Constraint("DistanceX", 19, 3, 10, 1, Q("3 mm")),
    Sketcher.Constraint("DistanceY", 0, 2, 0, 1, Q("13.25 mm")),
    Sketcher.Constraint("DistanceX", -1, 1, 18, 3, Q("57 mm")),
    Sketcher.Constraint("DistanceX", 0, 2, 8, 3, Q("1 mm")),
    Sketcher.Constraint("DistanceY", 0, 2, 4, 3, Q("5 mm")),
    Sketcher.Constraint("DistanceY", 6, 3, -1, 1, Q("21.5 mm")),
    Sketcher.Constraint("DistanceX", 5, 3, 4, 3, Q("28.5 mm")),
    Sketcher.Constraint("DistanceX", 7, 2, 4, 3, Q("6.5 mm")),
])
pocket11 = body.newObject("PartDesign::Pocket", "Pocket010")
pocket11.Profile = sketch12
pocket11.Length = 3
pocket11.Reversed = True

# Sketch on XY plane
sketch13 = body.newObject("Sketcher::SketchObject", "Sketch012")
sketch13.AttachmentSupport = (doc.getObject("XY_Plane"), [""])
sketch13.MapMode = "FlatFace"
sketch13.addGeometry([
    Part.LineSegment(Vector(-107.5, 23, 0), Vector(33.5, 23, 0)),
    Part.LineSegment(Vector(33.5, 23, 0), Vector(33.5, -23, 0)),
    Part.LineSegment(Vector(33.5, -23, 0), Vector(-107.5, -23, 0)),
    Part.LineSegment(Vector(-107.5, -23, 0), Vector(-107.5, 23, 0)),
], False)
sketch13.addConstraint([
    Sketcher.Constraint("Coincident", 0, 2, 1, 1),
    Sketcher.Constraint("Coincident", 1, 2, 2, 1),
    Sketcher.Constraint("Coincident", 2, 2, 3, 1),
    Sketcher.Constraint("Coincident", 3, 2, 0, 1),
    Sketcher.Constraint("Horizontal", 0),
    Sketcher.Constraint("Vertical", 1),
    Sketcher.Constraint("Horizontal", 2),
    Sketcher.Constraint("Vertical", 3),
    Sketcher.Constraint("DistanceX", 0, 1, 0, 2, Q("141 mm")),
    Sketcher.Constraint("DistanceY", 1, 2, 1, 1, Q("46 mm")),
    Sketcher.Constraint("DistanceY", -1, 1, 0, 2, Q("23 mm")),
    Sketcher.Constraint("DistanceX", -1, 1, 0, 2, Q("33.5 mm")),
])
pocket12 = body.newObject("PartDesign::Pocket", "Pocket011")
pocket12.Profile = sketch13
pocket12.Length = 3
pocket12.Reversed = True

doc.recompute()
